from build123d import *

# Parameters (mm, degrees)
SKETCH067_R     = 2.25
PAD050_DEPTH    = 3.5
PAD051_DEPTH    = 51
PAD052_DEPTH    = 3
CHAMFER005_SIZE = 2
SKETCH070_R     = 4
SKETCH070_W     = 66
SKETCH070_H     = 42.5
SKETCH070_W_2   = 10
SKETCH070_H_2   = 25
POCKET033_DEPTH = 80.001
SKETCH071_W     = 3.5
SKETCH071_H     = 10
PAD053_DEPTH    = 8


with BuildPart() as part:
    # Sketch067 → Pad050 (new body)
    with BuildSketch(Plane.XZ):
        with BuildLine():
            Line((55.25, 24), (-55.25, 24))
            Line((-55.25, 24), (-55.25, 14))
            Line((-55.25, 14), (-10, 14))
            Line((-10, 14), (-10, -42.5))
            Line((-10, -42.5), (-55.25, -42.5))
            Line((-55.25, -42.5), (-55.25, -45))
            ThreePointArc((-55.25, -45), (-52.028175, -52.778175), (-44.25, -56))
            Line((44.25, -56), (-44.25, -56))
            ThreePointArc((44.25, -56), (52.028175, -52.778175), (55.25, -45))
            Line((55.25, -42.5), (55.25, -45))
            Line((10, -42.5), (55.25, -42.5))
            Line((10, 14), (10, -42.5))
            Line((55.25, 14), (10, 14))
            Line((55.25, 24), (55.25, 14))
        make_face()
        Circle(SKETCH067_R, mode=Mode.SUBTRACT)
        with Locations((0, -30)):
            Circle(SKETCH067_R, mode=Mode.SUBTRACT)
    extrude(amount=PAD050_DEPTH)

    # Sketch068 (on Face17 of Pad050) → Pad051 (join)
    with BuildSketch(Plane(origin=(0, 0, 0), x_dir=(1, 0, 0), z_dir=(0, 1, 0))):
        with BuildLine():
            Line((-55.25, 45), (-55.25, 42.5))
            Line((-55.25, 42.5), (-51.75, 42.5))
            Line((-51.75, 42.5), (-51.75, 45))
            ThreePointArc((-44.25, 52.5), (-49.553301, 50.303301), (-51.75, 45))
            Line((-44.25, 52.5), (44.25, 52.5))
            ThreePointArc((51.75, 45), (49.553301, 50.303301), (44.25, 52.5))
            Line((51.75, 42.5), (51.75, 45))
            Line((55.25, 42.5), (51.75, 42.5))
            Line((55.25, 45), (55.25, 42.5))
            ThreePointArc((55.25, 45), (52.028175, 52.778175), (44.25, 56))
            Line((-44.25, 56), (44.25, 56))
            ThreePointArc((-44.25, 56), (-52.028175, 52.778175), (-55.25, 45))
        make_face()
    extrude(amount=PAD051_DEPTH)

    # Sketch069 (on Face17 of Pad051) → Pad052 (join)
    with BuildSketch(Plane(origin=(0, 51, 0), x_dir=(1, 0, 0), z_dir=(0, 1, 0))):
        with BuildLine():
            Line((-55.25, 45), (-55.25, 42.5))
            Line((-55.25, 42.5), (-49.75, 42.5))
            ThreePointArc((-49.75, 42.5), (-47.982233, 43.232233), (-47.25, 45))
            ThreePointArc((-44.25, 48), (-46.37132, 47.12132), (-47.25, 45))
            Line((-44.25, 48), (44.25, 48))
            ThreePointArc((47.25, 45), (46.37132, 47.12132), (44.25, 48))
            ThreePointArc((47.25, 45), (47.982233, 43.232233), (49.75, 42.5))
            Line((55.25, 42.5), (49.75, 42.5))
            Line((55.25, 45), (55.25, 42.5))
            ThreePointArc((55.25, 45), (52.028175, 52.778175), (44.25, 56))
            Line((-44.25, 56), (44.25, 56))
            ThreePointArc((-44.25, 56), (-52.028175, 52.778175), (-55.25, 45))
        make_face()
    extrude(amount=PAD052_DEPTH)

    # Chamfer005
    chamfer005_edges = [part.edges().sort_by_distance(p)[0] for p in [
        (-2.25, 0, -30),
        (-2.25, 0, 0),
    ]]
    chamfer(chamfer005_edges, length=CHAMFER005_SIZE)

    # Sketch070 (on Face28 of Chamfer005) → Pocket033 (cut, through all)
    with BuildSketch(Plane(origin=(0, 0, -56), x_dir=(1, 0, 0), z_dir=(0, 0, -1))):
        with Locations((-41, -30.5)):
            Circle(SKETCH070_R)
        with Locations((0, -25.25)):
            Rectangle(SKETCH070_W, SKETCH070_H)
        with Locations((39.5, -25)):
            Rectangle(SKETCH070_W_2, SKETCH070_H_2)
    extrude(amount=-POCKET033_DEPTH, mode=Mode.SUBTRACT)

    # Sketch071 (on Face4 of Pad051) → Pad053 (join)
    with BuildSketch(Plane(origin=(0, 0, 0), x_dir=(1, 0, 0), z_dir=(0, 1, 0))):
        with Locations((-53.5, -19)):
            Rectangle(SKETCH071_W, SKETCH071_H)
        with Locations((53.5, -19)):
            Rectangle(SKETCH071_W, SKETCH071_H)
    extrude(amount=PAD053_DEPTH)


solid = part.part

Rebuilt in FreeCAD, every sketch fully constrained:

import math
import FreeCAD as App
import Part
import Sketcher


def edges_at(feature, points):
    """Names of the edges that pass closest to the given points."""
    edges = feature.Shape.Edges
    near = lambda p: min(range(len(edges)), key=lambda i: edges[i].distToShape(Part.Vertex(*p))[0])
    return sorted({f"Edge{near(p) + 1}" for p in points})


def add_polygon(sketch, points):
    """Adds a closed chain of lines whose ends are joined by coincident constraints."""
    first, n = sketch.GeometryCount, len(points)
    for a, b in zip(points, points[1:] + points[:1]):
        sketch.addGeometry(Part.LineSegment(App.Vector(*a, 0), App.Vector(*b, 0)), False)
    for i in range(n):
        sketch.addConstraint(Sketcher.Constraint("Coincident", first + i, 2, first + (i + 1) % n, 1))

doc = App.newDocument("Part")
body = doc.addObject("PartDesign::Body", "Body")

# Sketch on XZ plane
sketch1 = body.newObject("Sketcher::SketchObject", "Sketch")
sketch1.AttachmentSupport = (doc.getObject("XZ_Plane"), [""])
sketch1.MapMode = "FlatFace"
sketch1.addGeometry([
    Part.LineSegment(App.Vector(55.2, 24, 0), App.Vector(-55.2, 24, 0)),  # 0
    Part.LineSegment(App.Vector(-55.2, 24, 0), App.Vector(-55.2, 14, 0)),  # 1
    Part.LineSegment(App.Vector(-55.2, 14, 0), App.Vector(-10, 14, 0)),  # 2
    Part.LineSegment(App.Vector(-10, 14, 0), App.Vector(-10, -42.5, 0)),  # 3
    Part.LineSegment(App.Vector(-10, -42.5, 0), App.Vector(-55.2, -42.5, 0)),  # 4
    Part.LineSegment(App.Vector(-55.2, -42.5, 0), App.Vector(-55.2, -45, 0)),  # 5
    Part.ArcOfCircle(Part.Circle(App.Vector(-44.3, -45, 0), App.Vector(0, 0, 1), 11), math.radians(180), math.radians(270)),  # 6
    Part.LineSegment(App.Vector(-44.2, -56, 0), App.Vector(44.2, -56, 0)),  # 7
    Part.ArcOfCircle(Part.Circle(App.Vector(44.3, -45, 0), App.Vector(0, 0, 1), 11), math.radians(-90), math.radians(0)),  # 8
    Part.LineSegment(App.Vector(55.2, -45, 0), App.Vector(55.2, -42.5, 0)),  # 9
    Part.LineSegment(App.Vector(55.2, -42.5, 0), App.Vector(10, -42.5, 0)),  # 10
    Part.LineSegment(App.Vector(10, -42.5, 0), App.Vector(10, 14, 0)),  # 11
    Part.LineSegment(App.Vector(10, 14, 0), App.Vector(55.2, 14, 0)),  # 12
    Part.LineSegment(App.Vector(55.2, 14, 0), App.Vector(55.2, 24, 0)),  # 13
    Part.Circle(App.Vector(0, -30, 0), App.Vector(0, 0, 1), 2.2),  # 14
    Part.Circle(App.Vector(0, 0, 0), App.Vector(0, 0, 1), 2.2),  # 15
], False)
sketch1.addConstraint([
    Sketcher.Constraint("Coincident", 0, 2, 1, 1),
    Sketcher.Constraint("Coincident", 1, 2, 2, 1),
    Sketcher.Constraint("Coincident", 2, 2, 3, 1),
    Sketcher.Constraint("Coincident", 3, 2, 4, 1),
    Sketcher.Constraint("Coincident", 4, 2, 5, 1),
    Sketcher.Constraint("Tangent", 5, 2, 6, 1),
    Sketcher.Constraint("Tangent", 6, 2, 7, 1),
    Sketcher.Constraint("Tangent", 7, 2, 8, 1),
    Sketcher.Constraint("Tangent", 8, 2, 9, 1),
    Sketcher.Constraint("Coincident", 9, 2, 10, 1),
    Sketcher.Constraint("Coincident", 10, 2, 11, 1),
    Sketcher.Constraint("Coincident", 11, 2, 12, 1),
    Sketcher.Constraint("Coincident", 12, 2, 13, 1),
    Sketcher.Constraint("Coincident", 13, 2, 0, 1),
    Sketcher.Constraint("Horizontal", 0),
    Sketcher.Constraint("Vertical", 1),
    Sketcher.Constraint("Horizontal", 2),
    Sketcher.Constraint("Vertical", 3),
    Sketcher.Constraint("Horizontal", 4),
    Sketcher.Constraint("Vertical", 5),
    Sketcher.Constraint("Horizontal", 7),
    Sketcher.Constraint("Vertical", 9),
    Sketcher.Constraint("Horizontal", 10),
    Sketcher.Constraint("Vertical", 11),
    Sketcher.Constraint("Horizontal", 12),
    Sketcher.Constraint("Vertical", 13),
    Sketcher.Constraint("Coincident", 15, 3, -1, 1),
    Sketcher.Constraint("Equal", 6, 8),
    Sketcher.Constraint("Equal", 14, 15),
    Sketcher.Constraint("Symmetric", 4, 2, 9, 2, -2),
    Sketcher.Constraint("Symmetric", 2, 2, 11, 2, -2),
    Sketcher.Constraint("PointOnObject", 14, 3, -2),
    Sketcher.Constraint("Vertical", 1, 2, 4, 2),
    Sketcher.Constraint("Vertical", 9, 2, 12, 2),
    Sketcher.Constraint("Radius", 6, 10.999999),
    Sketcher.Constraint("Diameter", 14, 4.5),
    Sketcher.Constraint("DistanceY", 1, 2, 1, 1, 10.0),
    Sketcher.Constraint("DistanceX", 0, 2, 0, 1, 110.5),
    Sketcher.Constraint("DistanceY", 3, 2, 3, 1, 56.5),
    Sketcher.Constraint("DistanceY", 5, 2, 5, 1, 2.5),
    Sketcher.Constraint("DistanceY", 6, 3, -1, 1, 45.000001),
    Sketcher.Constraint("DistanceY", 14, 3, -1, 1, 30.0),
    Sketcher.Constraint("DistanceX", 2, 2, -1, 1, 10.0),
])
pad1 = body.newObject("PartDesign::Pad", "Pad")
pad1.Profile = sketch1
pad1.Length = 3.5

# Sketch on XZ plane
sketch2 = body.newObject("Sketcher::SketchObject", "Sketch001")
sketch2.AttachmentSupport = (doc.getObject("XZ_Plane"), [""])
sketch2.MapMode = "FlatFace"
sketch2.addGeometry([
    Part.LineSegment(App.Vector(-55.2, -45, 0), App.Vector(-55.2, -42.5, 0)),  # 0
    Part.LineSegment(App.Vector(-55.2, -42.5, 0), App.Vector(-51.8, -42.5, 0)),  # 1
    Part.LineSegment(App.Vector(-51.8, -42.5, 0), App.Vector(-51.8, -45, 0)),  # 2
    Part.ArcOfCircle(Part.Circle(App.Vector(-44.3, -45, 0), App.Vector(0, 0, 1), 7.5), math.radians(180), math.radians(270)),  # 3
    Part.LineSegment(App.Vector(-44.2, -52.5, 0), App.Vector(44.2, -52.5, 0)),  # 4
    Part.ArcOfCircle(Part.Circle(App.Vector(44.3, -45, 0), App.Vector(0, 0, 1), 7.5), math.radians(-90), math.radians(0)),  # 5
    Part.LineSegment(App.Vector(51.8, -45, 0), App.Vector(51.8, -42.5, 0)),  # 6
    Part.LineSegment(App.Vector(51.8, -42.5, 0), App.Vector(55.2, -42.5, 0)),  # 7
    Part.LineSegment(App.Vector(55.2, -42.5, 0), App.Vector(55.2, -45, 0)),  # 8
    Part.ArcOfCircle(Part.Circle(App.Vector(44.3, -45, 0), App.Vector(0, 0, 1), 11), math.radians(-90), math.radians(0)),  # 9
    Part.LineSegment(App.Vector(44.2, -56, 0), App.Vector(-44.2, -56, 0)),  # 10
    Part.ArcOfCircle(Part.Circle(App.Vector(-44.3, -45, 0), App.Vector(0, 0, 1), 11), math.radians(180), math.radians(270)),  # 11
], False)
sketch2.addConstraint([
    Sketcher.Constraint("Coincident", 0, 2, 1, 1),
    Sketcher.Constraint("Coincident", 1, 2, 2, 1),
    Sketcher.Constraint("Tangent", 2, 2, 3, 1),
    Sketcher.Constraint("Tangent", 3, 2, 4, 1),
    Sketcher.Constraint("Tangent", 4, 2, 5, 1),
    Sketcher.Constraint("Tangent", 5, 2, 6, 1),
    Sketcher.Constraint("Coincident", 6, 2, 7, 1),
    Sketcher.Constraint("Coincident", 7, 2, 8, 1),
    Sketcher.Constraint("Tangent", 8, 2, 9, 2),
    Sketcher.Constraint("Tangent", 9, 1, 10, 1),
    Sketcher.Constraint("Tangent", 10, 2, 11, 2),
    Sketcher.Constraint("Tangent", 11, 1, 0, 1),
    Sketcher.Constraint("Vertical", 0),
    Sketcher.Constraint("Horizontal", 1),
    Sketcher.Constraint("Vertical", 2),
    Sketcher.Constraint("Horizontal", 4),
    Sketcher.Constraint("Vertical", 6),
    Sketcher.Constraint("Horizontal", 7),
    Sketcher.Constraint("Vertical", 8),
    Sketcher.Constraint("Horizontal", 10),
    Sketcher.Constraint("Coincident", 9, 3, 5, 3),
    Sketcher.Constraint("Coincident", 11, 3, 3, 3),
    Sketcher.Constraint("Equal", 3, 5),
    Sketcher.Constraint("Symmetric", 1, 2, 6, 2, -2),
    Sketcher.Constraint("Radius", 9, 10.999999),
    Sketcher.Constraint("Radius", 3, 7.5),
    Sketcher.Constraint("DistanceX", 4, 1, 4, 2, 88.5),
    Sketcher.Constraint("DistanceY", 0, 1, 0, 2, 2.5),
    Sketcher.Constraint("DistanceY", 3, 3, -1, 1, 45.0),
])
pad2 = body.newObject("PartDesign::Pad", "Pad001")
pad2.Profile = sketch2
pad2.Length = 51
pad2.Reversed = True

# Sketch on XZ plane
sketch3 = body.newObject("Sketcher::SketchObject", "Sketch002")
sketch3.AttachmentSupport = (doc.getObject("XZ_Plane"), [""])
sketch3.MapMode = "FlatFace"
sketch3.AttachmentOffset = App.Placement(App.Vector(0, 0, -51), App.Rotation())
sketch3.addGeometry([
    Part.LineSegment(App.Vector(-55.2, -45, 0), App.Vector(-55.2, -42.5, 0)),  # 0
    Part.LineSegment(App.Vector(-55.2, -42.5, 0), App.Vector(-49.8, -42.5, 0)),  # 1
    Part.ArcOfCircle(Part.Circle(App.Vector(-49.7, -45, 0), App.Vector(0, 0, 1), 2.5), math.radians(0), math.radians(90)),  # 2
    Part.ArcOfCircle(Part.Circle(App.Vector(-44.2, -45, 0), App.Vector(0, 0, 1), 3), math.radians(-180), math.radians(-90)),  # 3
    Part.LineSegment(App.Vector(-44.2, -48, 0), App.Vector(44.2, -48, 0)),  # 4
    Part.ArcOfCircle(Part.Circle(App.Vector(44.2, -45, 0), App.Vector(0, 0, 1), 3), math.radians(-90), math.radians(0)),  # 5
    Part.ArcOfCircle(Part.Circle(App.Vector(49.7, -45, 0), App.Vector(0, 0, 1), 2.5), math.radians(90), math.radians(180)),  # 6
    Part.LineSegment(App.Vector(49.8, -42.5, 0), App.Vector(55.2, -42.5, 0)),  # 7
    Part.LineSegment(App.Vector(55.2, -42.5, 0), App.Vector(55.2, -45, 0)),  # 8
    Part.ArcOfCircle(Part.Circle(App.Vector(44.3, -45, 0), App.Vector(0, 0, 1), 11), math.radians(-90), math.radians(0)),  # 9
    Part.LineSegment(App.Vector(44.2, -56, 0), App.Vector(-44.2, -56, 0)),  # 10
    Part.ArcOfCircle(Part.Circle(App.Vector(-44.3, -45, 0), App.Vector(0, 0, 1), 11), math.radians(180), math.radians(270)),  # 11
], False)
sketch3.addConstraint([
    Sketcher.Constraint("Coincident", 0, 2, 1, 1),
    Sketcher.Constraint("Tangent", 1, 2, 2, 2),
    Sketcher.Constraint("Tangent", 2, 1, 3, 1),
    Sketcher.Constraint("Tangent", 3, 2, 4, 1),
    Sketcher.Constraint("Tangent", 4, 2, 5, 1),
    Sketcher.Constraint("Tangent", 5, 2, 6, 2),
    Sketcher.Constraint("Tangent", 6, 1, 7, 1),
    Sketcher.Constraint("Coincident", 7, 2, 8, 1),
    Sketcher.Constraint("Tangent", 8, 2, 9, 2),
    Sketcher.Constraint("Tangent", 9, 1, 10, 1),
    Sketcher.Constraint("Tangent", 10, 2, 11, 2),
    Sketcher.Constraint("Tangent", 11, 1, 0, 1),
    Sketcher.Constraint("Vertical", 0),
    Sketcher.Constraint("Horizontal", 1),
    Sketcher.Constraint("Horizontal", 4),
    Sketcher.Constraint("Horizontal", 7),
    Sketcher.Constraint("Vertical", 8),
    Sketcher.Constraint("Horizontal", 10),
    Sketcher.Constraint("Coincident", 9, 3, 5, 3),
    Sketcher.Constraint("Coincident", 11, 3, 3, 3),
    Sketcher.Constraint("Equal", 3, 5),
    Sketcher.Constraint("Equal", 2, 6),
    Sketcher.Constraint("Symmetric", 2, 3, 6, 3, -2),
    Sketcher.Constraint("Horizontal", 2, 3, 3, 3),
    Sketcher.Constraint("Radius", 3, 3.000001),
    Sketcher.Constraint("Radius", 9, 10.999999),
    Sketcher.Constraint("Radius", 2, 2.5),
    Sketcher.Constraint("DistanceX", 4, 1, 4, 2, 88.5),
    Sketcher.Constraint("DistanceY", 2, 3, -1, 1, 45.0),
])
pad3 = body.newObject("PartDesign::Pad", "Pad002")
pad3.Profile = sketch3
pad3.Length = 3
pad3.Reversed = True
doc.recompute()

chamfer = body.newObject("PartDesign::Chamfer", "Chamfer")
chamfer.Base = (pad3, edges_at(pad3, [(-2.25, 0, -30), (-2.25, 0, 0)]))
chamfer.Size = 2

# Sketch on XY plane
sketch4 = body.newObject("Sketcher::SketchObject", "Sketch003")
sketch4.AttachmentSupport = (doc.getObject("XY_Plane"), [""])
sketch4.MapMode = "FlatFace"
sketch4.AttachmentOffset = App.Placement(App.Vector(0, 0, -56), App.Rotation())
sketch4.addGeometry(Part.Circle(App.Vector(-41, 30.5, 0), App.Vector(0, 0, 1), 4), False)  # 0
add_polygon(sketch4, [(-33, 4), (-33, 46.5), (33, 46.5), (33, 4)])  # lines 1-4
add_polygon(sketch4, [(34.5, 12.5), (34.5, 37.5), (44.5, 37.5), (44.5, 12.5)])  # lines 5-8
sketch4.addConstraint([
    Sketcher.Constraint("Vertical", 1),
    Sketcher.Constraint("Horizontal", 2),
    Sketcher.Constraint("Vertical", 3),
    Sketcher.Constraint("Horizontal", 4),
    Sketcher.Constraint("Vertical", 5),
    Sketcher.Constraint("Horizontal", 6),
    Sketcher.Constraint("Vertical", 7),
    Sketcher.Constraint("Horizontal", 8),
    Sketcher.Constraint("Diameter", 0, 8.0),
    Sketcher.Constraint("DistanceX", 2, 1, 2, 2, 66.0),
    Sketcher.Constraint("DistanceX", 6, 1, 6, 2, 10.0),
    Sketcher.Constraint("DistanceY", 5, 1, 5, 2, 25.0),
    Sketcher.Constraint("DistanceY", 1, 1, 1, 2, 42.5),
    Sketcher.Constraint("DistanceX", 0, 3, -1, 1, 41.0),
    Sketcher.Constraint("DistanceX", 1, 2, -1, 1, 33.0),
    Sketcher.Constraint("DistanceY", -1, 1, 3, 2, 4.0),
    Sketcher.Constraint("DistanceY", 0, 3, 1, 2, 16.0),
    Sketcher.Constraint("DistanceY", 5, 2, 2, 2, 9.0),
    Sketcher.Constraint("DistanceX", -1, 1, 5, 2, 34.5),
])
pocket1 = body.newObject("PartDesign::Pocket", "Pocket")
pocket1.Profile = sketch4
pocket1.Type = "ThroughAll"
pocket1.Reversed = True

# Sketch on XZ plane
sketch5 = body.newObject("Sketcher::SketchObject", "Sketch004")
sketch5.AttachmentSupport = (doc.getObject("XZ_Plane"), [""])
sketch5.MapMode = "FlatFace"
add_polygon(sketch5, [(-55.2, 14), (-55.2, 24), (-51.8, 24), (-51.8, 14)])  # lines 0-3
add_polygon(sketch5, [(51.8, 14), (51.8, 24), (55.2, 24), (55.2, 14)])  # lines 4-7
sketch5.addConstraint([
    Sketcher.Constraint("Vertical", 0),
    Sketcher.Constraint("Horizontal", 1),
    Sketcher.Constraint("Vertical", 2),
    Sketcher.Constraint("Horizontal", 3),
    Sketcher.Constraint("Vertical", 4),
    Sketcher.Constraint("Horizontal", 5),
    Sketcher.Constraint("Vertical", 6),
    Sketcher.Constraint("Horizontal", 7),
    Sketcher.Constraint("Symmetric", 1, 2, 4, 2, -2),
    Sketcher.Constraint("Symmetric", 3, 2, 6, 2, -2),
    Sketcher.Constraint("DistanceY", 0, 1, 0, 2, 10.0),
    Sketcher.Constraint("DistanceX", 1, 1, 1, 2, 3.5),
    Sketcher.Constraint("DistanceY", -1, 1, 0, 2, 24.0),
    Sketcher.Constraint("DistanceX", 0, 2, 4, 2, 107.0),
])
pad4 = body.newObject("PartDesign::Pad", "Pad003")
pad4.Profile = sketch5
pad4.Length = 8
pad4.Reversed = True

doc.recompute()
